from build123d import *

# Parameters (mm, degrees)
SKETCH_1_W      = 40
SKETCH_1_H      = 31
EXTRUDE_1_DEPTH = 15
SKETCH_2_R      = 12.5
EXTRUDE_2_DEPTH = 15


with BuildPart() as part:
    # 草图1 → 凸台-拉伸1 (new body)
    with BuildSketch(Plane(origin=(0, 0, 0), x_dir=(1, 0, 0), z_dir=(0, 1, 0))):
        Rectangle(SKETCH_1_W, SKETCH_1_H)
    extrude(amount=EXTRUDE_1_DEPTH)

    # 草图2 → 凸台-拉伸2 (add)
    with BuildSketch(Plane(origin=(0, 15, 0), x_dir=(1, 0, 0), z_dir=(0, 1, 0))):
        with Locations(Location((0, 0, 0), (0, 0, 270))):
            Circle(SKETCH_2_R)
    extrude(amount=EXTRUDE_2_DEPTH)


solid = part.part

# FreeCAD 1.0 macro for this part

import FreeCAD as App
import Part
import Sketcher

V = App.Vector

doc = App.newDocument("Part")
body = doc.addObject("PartDesign::Body", "Body")

# Sketch on XZ plane
sketch1 = body.newObject("Sketcher::SketchObject", "Sketch")
sketch1.AttachmentSupport = (doc.getObject("XZ_Plane"), [""])
sketch1.MapMode = "FlatFace"
sketch1.addGeometry([
    Part.LineSegment(V(-20, -15.5, 0), V(-20, 15.5, 0)),
    Part.LineSegment(V(-20, 15.5, 0), V(20, 15.5, 0)),
    Part.LineSegment(V(20, 15.5, 0), V(20, -15.5, 0)),
    Part.LineSegment(V(20, -15.5, 0), V(-20, -15.5, 0)),
], False)
sketch1.addConstraint([
    Sketcher.Constraint("Coincident", 0, 2, 1, 1),
    Sketcher.Constraint("Coincident", 1, 2, 2, 1),
    Sketcher.Constraint("Coincident", 2, 2, 3, 1),
    Sketcher.Constraint("Coincident", 3, 2, 0, 1),
    Sketcher.Constraint("Vertical", 0),
    Sketcher.Constraint("Horizontal", 1),
    Sketcher.Constraint("Vertical", 2),
    Sketcher.Constraint("Horizontal", 3),
    Sketcher.Constraint("Symmetric", 0, 2, 2, 2, -1, 1),
    Sketcher.Constraint("DistanceX", 1, 1, 1, 2, 40.0),
    Sketcher.Constraint("DistanceY", 0, 1, 0, 2, 31.0),
])
pad1 = body.newObject("PartDesign::Pad", "Pad")
pad1.Profile = sketch1
pad1.Length = 15
pad1.Reversed = True

# Sketch on XZ plane
sketch2 = body.newObject("Sketcher::SketchObject", "Sketch001")
sketch2.AttachmentSupport = (doc.getObject("XZ_Plane"), [""])
sketch2.MapMode = "FlatFace"
sketch2.AttachmentOffset = App.Placement(V(0, 0, -15), App.Rotation())
sketch2.addGeometry(Part.Circle(V(0, 0, 0), V(0, 0, 1), 12.5), False)
sketch2.addConstraint([
    Sketcher.Constraint("Coincident", 0, 3, -1, 1),
    Sketcher.Constraint("Diameter", 0, 25.0),
])
pad2 = body.newObject("PartDesign::Pad", "Pad001")
pad2.Profile = sketch2
pad2.Length = 15
pad2.Reversed = True

doc.recompute()
